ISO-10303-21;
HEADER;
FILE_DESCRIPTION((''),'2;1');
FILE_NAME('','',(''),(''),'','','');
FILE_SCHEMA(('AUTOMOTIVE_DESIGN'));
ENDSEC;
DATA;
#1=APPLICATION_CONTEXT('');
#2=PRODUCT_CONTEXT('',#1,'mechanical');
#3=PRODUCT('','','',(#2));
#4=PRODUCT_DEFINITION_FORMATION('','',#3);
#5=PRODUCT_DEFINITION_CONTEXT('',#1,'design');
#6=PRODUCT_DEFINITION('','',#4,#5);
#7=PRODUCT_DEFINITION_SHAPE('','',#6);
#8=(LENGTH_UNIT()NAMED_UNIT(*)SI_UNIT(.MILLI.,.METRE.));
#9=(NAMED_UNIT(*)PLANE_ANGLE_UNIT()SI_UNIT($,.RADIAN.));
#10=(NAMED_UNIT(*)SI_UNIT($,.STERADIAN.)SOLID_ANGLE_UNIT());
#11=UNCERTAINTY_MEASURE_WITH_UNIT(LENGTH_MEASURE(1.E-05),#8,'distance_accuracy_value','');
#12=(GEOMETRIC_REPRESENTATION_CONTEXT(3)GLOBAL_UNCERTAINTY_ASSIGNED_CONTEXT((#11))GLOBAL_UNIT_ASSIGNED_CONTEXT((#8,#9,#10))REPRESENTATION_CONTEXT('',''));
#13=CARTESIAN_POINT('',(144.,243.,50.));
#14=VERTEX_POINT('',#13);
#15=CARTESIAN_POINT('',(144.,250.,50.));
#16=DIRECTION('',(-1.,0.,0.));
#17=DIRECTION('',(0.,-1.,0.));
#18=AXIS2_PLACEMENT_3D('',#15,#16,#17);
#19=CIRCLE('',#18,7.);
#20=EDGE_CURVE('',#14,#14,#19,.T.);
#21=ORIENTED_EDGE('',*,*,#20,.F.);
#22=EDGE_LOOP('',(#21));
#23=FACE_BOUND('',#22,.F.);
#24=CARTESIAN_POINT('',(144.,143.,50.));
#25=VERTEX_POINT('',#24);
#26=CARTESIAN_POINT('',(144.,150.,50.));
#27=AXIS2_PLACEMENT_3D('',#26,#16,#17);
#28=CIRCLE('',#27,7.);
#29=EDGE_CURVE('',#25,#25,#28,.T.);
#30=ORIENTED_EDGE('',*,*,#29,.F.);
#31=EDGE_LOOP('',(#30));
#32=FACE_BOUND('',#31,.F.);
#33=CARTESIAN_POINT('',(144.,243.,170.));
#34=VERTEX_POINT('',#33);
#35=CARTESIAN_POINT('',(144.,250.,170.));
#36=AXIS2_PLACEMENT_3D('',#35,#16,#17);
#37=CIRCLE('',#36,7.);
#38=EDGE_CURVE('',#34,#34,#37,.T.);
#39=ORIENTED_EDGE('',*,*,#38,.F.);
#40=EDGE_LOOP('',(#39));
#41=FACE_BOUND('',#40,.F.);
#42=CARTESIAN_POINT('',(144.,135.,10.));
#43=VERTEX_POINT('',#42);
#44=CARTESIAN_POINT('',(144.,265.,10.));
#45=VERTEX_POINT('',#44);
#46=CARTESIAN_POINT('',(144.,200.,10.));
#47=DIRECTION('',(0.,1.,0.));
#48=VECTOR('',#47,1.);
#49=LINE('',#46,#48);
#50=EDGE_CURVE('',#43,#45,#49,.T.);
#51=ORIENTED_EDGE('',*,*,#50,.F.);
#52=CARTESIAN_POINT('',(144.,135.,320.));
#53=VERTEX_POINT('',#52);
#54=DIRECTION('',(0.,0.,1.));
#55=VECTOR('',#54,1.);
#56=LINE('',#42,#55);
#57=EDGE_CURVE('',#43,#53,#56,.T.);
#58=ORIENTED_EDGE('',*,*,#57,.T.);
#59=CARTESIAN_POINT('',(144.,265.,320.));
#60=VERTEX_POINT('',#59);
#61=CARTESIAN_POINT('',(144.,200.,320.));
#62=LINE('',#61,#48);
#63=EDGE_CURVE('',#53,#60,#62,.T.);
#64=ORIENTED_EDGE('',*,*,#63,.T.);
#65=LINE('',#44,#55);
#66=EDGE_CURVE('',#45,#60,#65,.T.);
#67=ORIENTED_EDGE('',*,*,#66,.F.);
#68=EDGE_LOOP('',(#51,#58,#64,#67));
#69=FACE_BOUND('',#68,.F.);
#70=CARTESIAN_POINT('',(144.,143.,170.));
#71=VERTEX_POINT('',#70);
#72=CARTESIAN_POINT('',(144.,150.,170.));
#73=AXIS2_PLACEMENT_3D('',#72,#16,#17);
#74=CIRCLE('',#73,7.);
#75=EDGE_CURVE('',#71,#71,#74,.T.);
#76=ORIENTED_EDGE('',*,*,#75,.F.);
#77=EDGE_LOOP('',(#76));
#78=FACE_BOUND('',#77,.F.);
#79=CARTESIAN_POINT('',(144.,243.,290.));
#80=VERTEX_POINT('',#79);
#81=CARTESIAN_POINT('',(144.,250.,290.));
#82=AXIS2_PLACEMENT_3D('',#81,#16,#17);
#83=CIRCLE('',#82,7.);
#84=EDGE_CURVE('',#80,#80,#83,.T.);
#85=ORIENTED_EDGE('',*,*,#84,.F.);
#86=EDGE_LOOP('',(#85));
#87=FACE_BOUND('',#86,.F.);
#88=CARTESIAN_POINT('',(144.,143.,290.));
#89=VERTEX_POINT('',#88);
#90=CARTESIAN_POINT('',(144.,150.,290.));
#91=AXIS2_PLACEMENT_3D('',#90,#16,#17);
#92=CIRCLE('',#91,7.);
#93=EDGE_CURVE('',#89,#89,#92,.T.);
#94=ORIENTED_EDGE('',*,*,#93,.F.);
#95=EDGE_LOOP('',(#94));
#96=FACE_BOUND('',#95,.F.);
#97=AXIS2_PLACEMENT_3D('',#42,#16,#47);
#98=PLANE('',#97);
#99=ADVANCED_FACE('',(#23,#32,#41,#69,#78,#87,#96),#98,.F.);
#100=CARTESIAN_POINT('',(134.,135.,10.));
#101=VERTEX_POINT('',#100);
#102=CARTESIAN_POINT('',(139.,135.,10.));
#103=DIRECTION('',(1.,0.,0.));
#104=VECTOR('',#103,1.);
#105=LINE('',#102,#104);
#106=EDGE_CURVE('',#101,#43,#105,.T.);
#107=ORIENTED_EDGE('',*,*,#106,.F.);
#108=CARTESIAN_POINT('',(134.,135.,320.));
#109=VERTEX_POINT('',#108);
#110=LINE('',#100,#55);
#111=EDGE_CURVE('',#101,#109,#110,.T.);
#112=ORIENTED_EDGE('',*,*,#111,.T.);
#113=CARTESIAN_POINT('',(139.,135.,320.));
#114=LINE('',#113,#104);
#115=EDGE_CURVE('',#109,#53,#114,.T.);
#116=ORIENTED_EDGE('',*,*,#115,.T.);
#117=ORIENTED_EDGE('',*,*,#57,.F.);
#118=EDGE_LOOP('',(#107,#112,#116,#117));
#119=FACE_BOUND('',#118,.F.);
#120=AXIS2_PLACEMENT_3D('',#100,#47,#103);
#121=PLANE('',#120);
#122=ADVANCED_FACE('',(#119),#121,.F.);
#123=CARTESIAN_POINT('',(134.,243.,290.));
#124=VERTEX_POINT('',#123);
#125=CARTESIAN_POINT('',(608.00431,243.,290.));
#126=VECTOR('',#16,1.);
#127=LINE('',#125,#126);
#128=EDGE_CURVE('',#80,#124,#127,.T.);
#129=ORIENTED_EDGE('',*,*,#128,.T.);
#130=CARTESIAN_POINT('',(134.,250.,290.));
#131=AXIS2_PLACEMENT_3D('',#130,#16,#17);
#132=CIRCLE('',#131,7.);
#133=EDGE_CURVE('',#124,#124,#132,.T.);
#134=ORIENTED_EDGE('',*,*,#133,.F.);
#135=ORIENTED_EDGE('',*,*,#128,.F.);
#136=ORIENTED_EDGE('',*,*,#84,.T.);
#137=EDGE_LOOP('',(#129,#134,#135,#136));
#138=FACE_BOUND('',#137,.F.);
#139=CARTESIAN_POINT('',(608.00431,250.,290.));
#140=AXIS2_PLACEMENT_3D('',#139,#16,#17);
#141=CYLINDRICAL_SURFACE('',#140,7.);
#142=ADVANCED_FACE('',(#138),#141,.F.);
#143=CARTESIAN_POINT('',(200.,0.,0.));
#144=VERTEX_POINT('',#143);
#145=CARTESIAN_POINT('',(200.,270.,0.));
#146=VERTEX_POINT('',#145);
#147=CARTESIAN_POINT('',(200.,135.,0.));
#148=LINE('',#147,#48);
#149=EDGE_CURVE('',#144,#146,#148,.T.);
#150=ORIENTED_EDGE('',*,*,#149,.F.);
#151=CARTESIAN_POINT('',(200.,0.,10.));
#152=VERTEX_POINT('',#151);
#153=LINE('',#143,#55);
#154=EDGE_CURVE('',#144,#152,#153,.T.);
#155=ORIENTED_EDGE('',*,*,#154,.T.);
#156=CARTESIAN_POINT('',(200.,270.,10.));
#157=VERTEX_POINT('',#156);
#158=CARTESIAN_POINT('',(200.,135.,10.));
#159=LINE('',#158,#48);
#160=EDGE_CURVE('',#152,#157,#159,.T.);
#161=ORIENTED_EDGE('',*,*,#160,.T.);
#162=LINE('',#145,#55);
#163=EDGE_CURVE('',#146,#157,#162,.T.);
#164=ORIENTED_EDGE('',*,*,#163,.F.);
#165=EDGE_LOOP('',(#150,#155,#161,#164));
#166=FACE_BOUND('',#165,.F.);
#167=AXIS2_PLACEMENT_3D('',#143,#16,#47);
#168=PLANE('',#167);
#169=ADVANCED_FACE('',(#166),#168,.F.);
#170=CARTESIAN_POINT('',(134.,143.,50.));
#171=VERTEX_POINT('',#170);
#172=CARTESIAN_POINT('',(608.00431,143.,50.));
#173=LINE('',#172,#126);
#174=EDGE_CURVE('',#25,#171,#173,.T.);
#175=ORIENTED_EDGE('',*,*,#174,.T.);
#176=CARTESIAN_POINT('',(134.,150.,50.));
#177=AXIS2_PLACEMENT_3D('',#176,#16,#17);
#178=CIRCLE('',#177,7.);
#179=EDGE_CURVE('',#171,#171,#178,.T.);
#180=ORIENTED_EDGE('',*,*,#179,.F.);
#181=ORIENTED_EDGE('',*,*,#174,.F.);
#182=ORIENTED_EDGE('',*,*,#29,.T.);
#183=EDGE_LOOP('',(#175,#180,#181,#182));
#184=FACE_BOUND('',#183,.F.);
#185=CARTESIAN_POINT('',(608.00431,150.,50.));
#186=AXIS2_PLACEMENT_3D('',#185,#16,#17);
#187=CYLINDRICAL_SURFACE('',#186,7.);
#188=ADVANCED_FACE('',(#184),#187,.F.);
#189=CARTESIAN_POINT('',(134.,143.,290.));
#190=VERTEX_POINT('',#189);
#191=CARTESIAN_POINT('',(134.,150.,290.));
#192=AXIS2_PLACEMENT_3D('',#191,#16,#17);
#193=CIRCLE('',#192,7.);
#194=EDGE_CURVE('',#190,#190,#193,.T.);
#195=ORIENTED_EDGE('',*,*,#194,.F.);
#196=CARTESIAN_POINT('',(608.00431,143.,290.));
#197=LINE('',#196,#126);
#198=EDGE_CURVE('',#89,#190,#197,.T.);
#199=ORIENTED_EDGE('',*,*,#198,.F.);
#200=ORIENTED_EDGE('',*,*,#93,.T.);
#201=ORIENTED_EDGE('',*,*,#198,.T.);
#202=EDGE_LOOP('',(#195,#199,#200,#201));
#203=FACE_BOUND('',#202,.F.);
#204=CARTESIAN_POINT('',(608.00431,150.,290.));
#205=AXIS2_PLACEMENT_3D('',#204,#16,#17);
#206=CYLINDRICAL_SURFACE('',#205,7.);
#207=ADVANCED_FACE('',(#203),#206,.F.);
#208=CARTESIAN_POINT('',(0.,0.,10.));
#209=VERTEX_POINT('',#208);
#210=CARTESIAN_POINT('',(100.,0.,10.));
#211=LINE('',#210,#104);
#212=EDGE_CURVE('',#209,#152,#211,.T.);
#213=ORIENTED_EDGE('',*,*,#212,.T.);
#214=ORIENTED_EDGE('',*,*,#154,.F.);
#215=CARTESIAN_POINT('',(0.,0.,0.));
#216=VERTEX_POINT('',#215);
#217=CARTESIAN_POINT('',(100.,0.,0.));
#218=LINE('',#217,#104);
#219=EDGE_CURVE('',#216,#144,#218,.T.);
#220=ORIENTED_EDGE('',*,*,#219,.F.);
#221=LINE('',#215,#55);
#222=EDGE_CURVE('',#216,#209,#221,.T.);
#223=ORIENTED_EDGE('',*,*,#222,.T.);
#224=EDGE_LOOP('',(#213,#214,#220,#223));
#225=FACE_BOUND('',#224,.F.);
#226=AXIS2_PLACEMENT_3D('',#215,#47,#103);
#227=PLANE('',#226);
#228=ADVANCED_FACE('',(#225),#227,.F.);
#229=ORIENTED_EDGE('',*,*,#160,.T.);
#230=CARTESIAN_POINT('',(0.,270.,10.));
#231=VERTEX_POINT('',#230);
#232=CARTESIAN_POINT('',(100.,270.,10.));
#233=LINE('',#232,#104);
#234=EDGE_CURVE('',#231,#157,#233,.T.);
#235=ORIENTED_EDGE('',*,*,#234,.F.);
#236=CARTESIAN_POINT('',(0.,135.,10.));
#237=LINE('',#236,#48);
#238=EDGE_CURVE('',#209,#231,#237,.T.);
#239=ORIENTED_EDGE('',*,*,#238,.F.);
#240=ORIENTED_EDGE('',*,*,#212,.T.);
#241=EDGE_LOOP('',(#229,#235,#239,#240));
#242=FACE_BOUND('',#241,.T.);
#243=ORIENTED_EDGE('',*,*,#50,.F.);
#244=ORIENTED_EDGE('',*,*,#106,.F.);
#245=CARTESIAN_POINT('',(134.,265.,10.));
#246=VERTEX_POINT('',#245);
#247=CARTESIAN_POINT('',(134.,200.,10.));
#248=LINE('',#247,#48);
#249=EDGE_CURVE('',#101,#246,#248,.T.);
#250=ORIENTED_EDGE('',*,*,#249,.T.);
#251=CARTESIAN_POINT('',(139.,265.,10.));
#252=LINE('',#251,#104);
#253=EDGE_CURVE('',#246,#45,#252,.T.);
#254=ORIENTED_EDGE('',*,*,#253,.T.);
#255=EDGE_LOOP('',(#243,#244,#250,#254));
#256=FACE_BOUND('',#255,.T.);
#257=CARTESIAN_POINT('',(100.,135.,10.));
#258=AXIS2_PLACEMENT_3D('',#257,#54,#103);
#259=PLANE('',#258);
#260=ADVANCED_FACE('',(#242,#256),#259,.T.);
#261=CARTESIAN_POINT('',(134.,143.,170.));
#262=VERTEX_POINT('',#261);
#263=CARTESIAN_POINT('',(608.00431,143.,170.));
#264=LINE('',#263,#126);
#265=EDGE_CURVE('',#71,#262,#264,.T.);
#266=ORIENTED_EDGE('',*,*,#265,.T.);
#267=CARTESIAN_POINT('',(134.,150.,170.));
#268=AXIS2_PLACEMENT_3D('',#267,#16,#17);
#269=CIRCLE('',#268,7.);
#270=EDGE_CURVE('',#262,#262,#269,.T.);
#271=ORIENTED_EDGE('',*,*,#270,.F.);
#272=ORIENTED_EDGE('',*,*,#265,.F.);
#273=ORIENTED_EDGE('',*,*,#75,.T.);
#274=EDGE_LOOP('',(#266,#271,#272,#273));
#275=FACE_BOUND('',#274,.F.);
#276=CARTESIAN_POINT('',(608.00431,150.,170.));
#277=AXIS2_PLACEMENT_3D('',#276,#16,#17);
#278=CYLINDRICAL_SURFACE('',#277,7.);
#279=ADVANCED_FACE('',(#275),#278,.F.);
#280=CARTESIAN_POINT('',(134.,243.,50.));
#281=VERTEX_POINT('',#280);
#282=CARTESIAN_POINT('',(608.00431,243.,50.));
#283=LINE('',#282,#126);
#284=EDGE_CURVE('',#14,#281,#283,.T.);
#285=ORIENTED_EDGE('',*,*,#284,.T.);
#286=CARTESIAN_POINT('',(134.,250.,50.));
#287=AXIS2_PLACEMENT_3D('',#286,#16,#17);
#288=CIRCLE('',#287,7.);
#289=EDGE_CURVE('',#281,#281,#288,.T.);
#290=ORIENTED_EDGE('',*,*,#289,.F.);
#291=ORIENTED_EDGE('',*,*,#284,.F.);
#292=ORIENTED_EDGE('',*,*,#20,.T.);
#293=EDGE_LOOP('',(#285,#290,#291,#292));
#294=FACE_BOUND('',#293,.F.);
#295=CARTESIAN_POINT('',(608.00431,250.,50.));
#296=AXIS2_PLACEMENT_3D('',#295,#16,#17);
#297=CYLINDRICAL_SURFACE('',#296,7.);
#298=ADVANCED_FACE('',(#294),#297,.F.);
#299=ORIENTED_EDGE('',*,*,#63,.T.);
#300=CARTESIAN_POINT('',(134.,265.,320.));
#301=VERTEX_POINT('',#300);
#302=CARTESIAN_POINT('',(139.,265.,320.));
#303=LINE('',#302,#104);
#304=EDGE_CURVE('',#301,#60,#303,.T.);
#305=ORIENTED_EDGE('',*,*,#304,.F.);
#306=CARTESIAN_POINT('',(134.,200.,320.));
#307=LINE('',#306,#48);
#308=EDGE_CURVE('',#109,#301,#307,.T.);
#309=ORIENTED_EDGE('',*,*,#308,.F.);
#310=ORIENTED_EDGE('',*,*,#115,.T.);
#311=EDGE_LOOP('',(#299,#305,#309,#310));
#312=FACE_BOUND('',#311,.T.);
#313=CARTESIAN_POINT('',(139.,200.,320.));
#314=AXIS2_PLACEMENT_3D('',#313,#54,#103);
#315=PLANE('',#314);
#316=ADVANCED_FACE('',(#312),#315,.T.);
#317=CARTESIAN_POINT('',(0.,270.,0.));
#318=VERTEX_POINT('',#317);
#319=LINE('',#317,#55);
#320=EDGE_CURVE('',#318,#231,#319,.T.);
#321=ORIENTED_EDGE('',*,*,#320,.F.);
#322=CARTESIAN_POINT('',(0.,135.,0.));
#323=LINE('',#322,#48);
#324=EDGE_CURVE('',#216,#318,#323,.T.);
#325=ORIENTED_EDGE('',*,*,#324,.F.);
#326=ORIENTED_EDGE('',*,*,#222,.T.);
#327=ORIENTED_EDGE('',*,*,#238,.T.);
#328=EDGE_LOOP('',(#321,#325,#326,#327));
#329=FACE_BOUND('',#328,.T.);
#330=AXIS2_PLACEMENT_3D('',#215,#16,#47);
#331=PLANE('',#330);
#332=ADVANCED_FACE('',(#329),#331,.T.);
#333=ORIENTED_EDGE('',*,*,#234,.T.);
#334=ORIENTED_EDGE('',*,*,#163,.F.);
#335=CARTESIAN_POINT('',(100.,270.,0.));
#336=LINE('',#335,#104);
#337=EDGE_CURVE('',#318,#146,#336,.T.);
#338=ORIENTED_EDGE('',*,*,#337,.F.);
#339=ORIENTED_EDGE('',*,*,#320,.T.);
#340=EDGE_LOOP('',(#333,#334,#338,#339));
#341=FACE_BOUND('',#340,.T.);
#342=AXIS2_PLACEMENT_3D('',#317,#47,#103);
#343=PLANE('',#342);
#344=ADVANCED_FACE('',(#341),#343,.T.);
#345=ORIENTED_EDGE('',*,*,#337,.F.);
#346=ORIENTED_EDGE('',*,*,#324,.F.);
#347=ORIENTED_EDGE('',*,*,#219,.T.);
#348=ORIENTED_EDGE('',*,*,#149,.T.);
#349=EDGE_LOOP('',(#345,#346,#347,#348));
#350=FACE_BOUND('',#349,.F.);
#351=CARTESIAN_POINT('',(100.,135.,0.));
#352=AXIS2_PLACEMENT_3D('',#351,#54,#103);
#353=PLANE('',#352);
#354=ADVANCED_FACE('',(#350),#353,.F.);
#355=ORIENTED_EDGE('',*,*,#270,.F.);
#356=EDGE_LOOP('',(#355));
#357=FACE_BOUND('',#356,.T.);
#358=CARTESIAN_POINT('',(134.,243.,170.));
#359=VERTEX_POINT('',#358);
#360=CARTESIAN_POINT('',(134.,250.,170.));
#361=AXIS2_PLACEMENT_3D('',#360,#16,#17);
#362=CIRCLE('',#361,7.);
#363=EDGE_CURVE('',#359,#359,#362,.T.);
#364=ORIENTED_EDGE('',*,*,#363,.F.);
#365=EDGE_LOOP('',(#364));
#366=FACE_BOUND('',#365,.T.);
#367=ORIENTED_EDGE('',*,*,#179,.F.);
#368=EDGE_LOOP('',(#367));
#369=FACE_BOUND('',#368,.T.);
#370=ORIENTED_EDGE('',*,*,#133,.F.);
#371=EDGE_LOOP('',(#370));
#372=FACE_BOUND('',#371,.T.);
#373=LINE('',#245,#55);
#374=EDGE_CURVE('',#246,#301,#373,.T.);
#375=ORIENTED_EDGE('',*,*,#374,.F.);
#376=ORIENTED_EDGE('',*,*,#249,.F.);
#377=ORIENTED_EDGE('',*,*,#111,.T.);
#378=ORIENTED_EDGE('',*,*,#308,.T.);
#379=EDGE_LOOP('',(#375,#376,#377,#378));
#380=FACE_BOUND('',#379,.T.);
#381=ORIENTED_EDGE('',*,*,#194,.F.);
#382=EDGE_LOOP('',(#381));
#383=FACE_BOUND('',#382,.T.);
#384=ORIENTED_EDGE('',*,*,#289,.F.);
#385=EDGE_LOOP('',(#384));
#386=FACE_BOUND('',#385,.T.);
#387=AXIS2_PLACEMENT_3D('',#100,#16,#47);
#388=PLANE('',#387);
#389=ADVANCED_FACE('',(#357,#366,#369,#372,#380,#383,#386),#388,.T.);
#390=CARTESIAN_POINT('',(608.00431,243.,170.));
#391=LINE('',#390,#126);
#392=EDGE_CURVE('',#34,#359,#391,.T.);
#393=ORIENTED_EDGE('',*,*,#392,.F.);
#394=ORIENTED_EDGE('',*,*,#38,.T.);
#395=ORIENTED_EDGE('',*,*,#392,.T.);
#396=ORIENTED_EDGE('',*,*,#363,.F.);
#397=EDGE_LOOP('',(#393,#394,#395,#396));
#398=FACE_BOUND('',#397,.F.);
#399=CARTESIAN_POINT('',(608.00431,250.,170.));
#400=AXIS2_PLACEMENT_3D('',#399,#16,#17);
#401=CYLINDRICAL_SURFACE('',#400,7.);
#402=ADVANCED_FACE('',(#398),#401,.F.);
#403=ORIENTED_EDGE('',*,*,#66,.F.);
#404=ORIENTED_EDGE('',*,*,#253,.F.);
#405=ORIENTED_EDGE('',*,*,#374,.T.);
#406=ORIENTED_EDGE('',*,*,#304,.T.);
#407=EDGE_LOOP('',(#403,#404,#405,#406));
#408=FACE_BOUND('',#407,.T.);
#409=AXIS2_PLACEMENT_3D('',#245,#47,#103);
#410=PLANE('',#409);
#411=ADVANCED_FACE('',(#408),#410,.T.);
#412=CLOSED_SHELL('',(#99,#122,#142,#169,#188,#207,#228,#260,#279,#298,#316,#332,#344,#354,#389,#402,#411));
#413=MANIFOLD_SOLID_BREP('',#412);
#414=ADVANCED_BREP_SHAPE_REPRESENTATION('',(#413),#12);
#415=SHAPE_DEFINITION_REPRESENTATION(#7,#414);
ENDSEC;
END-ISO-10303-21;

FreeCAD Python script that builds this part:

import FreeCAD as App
import Part
import Sketcher
from FreeCAD import Vector
Q = App.Units.Quantity


def add_polygon(sketch, points):
    """Adds a closed chain of lines whose ends are joined by coincident constraints."""
    first, n = sketch.GeometryCount, len(points)
    for a, b in zip(points, points[1:] + points[:1]):
        sketch.addGeometry(Part.LineSegment(App.Vector(*a, 0), App.Vector(*b, 0)), False)
    for i in range(n):
        sketch.addConstraint(Sketcher.Constraint("Coincident", first + i, 2, first + (i + 1) % n, 1))

doc = App.newDocument("Part")
body = doc.addObject("PartDesign::Body", "Body")

sketch1 = body.newObject("Sketcher::SketchObject", "Sketch")
sketch1.AttachmentSupport = (doc.getObject("XY_Plane"), [""])
sketch1.MapMode = "FlatFace"
add_polygon(sketch1, [(0, 270), (0, 0), (200, 0), (200, 270)])
sketch1.addConstraint([
    Sketcher.Constraint("Vertical", 0),
    Sketcher.Constraint("Horizontal", 1),
    Sketcher.Constraint("Vertical", 2),
    Sketcher.Constraint("Horizontal", 3),
    Sketcher.Constraint("Coincident", 0, 2, -1, 1),
    Sketcher.Constraint("DistanceX", 1, 1, 1, 2, Q("200 mm")),
    Sketcher.Constraint("DistanceY", 0, 2, 0, 1, Q("270 mm")),
])
pad1 = body.newObject("PartDesign::Pad", "Pad")
pad1.Profile = sketch1
pad1.Length = 10

sketch2 = body.newObject("Sketcher::SketchObject", "Sketch001")
sketch2.AttachmentSupport = (doc.getObject("XY_Plane"), [""])
sketch2.MapMode = "FlatFace"
sketch2.AttachmentOffset = App.Placement(Vector(0, 0, 10), App.Rotation())
add_polygon(sketch2, [(134, 265), (134, 135), (144, 135), (144, 265)])
sketch2.addConstraint([
    Sketcher.Constraint("Vertical", 0),
    Sketcher.Constraint("Horizontal", 1),
    Sketcher.Constraint("Vertical", 2),
    Sketcher.Constraint("Horizontal", 3),
    Sketcher.Constraint("DistanceX", 1, 1, 1, 2, Q("10 mm")),
    Sketcher.Constraint("DistanceY", 0, 2, 0, 1, Q("130 mm")),
    Sketcher.Constraint("DistanceX", -1, 1, 0, 2, Q("134 mm")),
    Sketcher.Constraint("DistanceY", -1, 1, 0, 2, Q("135 mm")),
])
pad2 = body.newObject("PartDesign::Pad", "Pad001")
pad2.Profile = sketch2
pad2.Length = 310

sketch3 = body.newObject("Sketcher::SketchObject", "Sketch002")
sketch3.AttachmentSupport = (doc.getObject("YZ_Plane"), [""])
sketch3.MapMode = "FlatFace"
sketch3.AttachmentOffset = App.Placement(Vector(0, 0, 144), App.Rotation())
sketch3.addGeometry([
    Part.Circle(Vector(150, 290, 0), Vector(0, 0, 1), 7),
    Part.Circle(Vector(250, 290, 0), Vector(0, 0, 1), 7),
    Part.Circle(Vector(250, 170, 0), Vector(0, 0, 1), 7),
    Part.Circle(Vector(150, 170, 0), Vector(0, 0, 1), 7),
    Part.Circle(Vector(150, 50, 0), Vector(0, 0, 1), 7),
    Part.Circle(Vector(250, 50, 0), Vector(0, 0, 1), 7),
], False)
sketch3.addConstraint([
    Sketcher.Constraint("Equal", 0, 1),
    Sketcher.Constraint("Equal", 1, 2),
    Sketcher.Constraint("Equal", 2, 3),
    Sketcher.Constraint("Equal", 3, 4),
    Sketcher.Constraint("Equal", 4, 5),
    Sketcher.Constraint("Horizontal", 0, 3, 1, 3),
    Sketcher.Constraint("Horizontal", 2, 3, 3, 3),
    Sketcher.Constraint("Horizontal", 4, 3, 5, 3),
    Sketcher.Constraint("Vertical", 1, 3, 2, 3),
    Sketcher.Constraint("Vertical", 0, 3, 3, 3),
    Sketcher.Constraint("Vertical", 3, 3, 4, 3),
    Sketcher.Constraint("Vertical", 2, 3, 5, 3),
    Sketcher.Constraint("Diameter", 0, Q("14 mm")),
    Sketcher.Constraint("DistanceX", -1, 1, 0, 3, Q("150 mm")),
    Sketcher.Constraint("DistanceY", -1, 1, 0, 3, Q("290 mm")),
    Sketcher.Constraint("DistanceX", -1, 1, 1, 3, Q("250 mm")),
    Sketcher.Constraint("DistanceY", -1, 1, 2, 3, Q("170 mm")),
    Sketcher.Constraint("DistanceY", -1, 1, 4, 3, Q("50 mm")),
])
doc.recompute()
hole = body.newObject("PartDesign::Hole", "Hole")
hole.Profile = sketch3
hole.ThreadType = "None"
hole.Diameter = 14
hole.DepthType = "ThroughAll"

doc.recompute()
